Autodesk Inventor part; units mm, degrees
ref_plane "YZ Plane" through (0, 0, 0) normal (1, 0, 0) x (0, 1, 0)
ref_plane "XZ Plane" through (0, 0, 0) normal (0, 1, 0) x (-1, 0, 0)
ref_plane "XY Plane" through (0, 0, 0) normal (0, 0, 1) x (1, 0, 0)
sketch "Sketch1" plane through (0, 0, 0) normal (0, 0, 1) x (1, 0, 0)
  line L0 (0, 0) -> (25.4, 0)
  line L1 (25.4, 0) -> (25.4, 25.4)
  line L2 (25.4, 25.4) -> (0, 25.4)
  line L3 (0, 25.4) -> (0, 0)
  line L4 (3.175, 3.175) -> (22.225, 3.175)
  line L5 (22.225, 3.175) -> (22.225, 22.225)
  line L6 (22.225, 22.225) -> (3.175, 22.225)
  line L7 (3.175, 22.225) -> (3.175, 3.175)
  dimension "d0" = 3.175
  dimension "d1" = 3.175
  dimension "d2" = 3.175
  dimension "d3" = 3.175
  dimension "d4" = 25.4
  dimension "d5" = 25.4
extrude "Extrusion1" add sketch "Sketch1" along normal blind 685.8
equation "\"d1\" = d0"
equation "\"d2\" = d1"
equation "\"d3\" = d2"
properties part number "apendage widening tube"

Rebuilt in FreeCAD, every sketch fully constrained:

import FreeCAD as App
import Part
import Sketcher
from FreeCAD import Vector
Q = App.Units.Quantity

doc = App.newDocument("Part")
body = doc.addObject("PartDesign::Body", "Body")

# Sketch on XY plane
sketch1 = body.newObject("Sketcher::SketchObject", "Sketch")
sketch1.AttachmentSupport = (doc.getObject("XY_Plane"), [""])
sketch1.MapMode = "FlatFace"
sketch1.addGeometry([
    Part.LineSegment(Vector(0, 25.4, 0), Vector(0, 0, 0)),  # 0
    Part.LineSegment(Vector(0, 0, 0), Vector(25.4, 0, 0)),  # 1
    Part.LineSegment(Vector(25.4, 0, 0), Vector(25.4, 25.4, 0)),  # 2
    Part.LineSegment(Vector(25.4, 25.4, 0), Vector(0, 25.4, 0)),  # 3
    Part.LineSegment(Vector(22.225, 3.175, 0), Vector(3.175, 3.175, 0)),  # 4
    Part.LineSegment(Vector(3.175, 3.175, 0), Vector(3.175, 22.225, 0)),  # 5
    Part.LineSegment(Vector(3.175, 22.225, 0), Vector(22.225, 22.225, 0)),  # 6
    Part.LineSegment(Vector(22.225, 22.225, 0), Vector(22.225, 3.175, 0)),  # 7
], False)
sketch1.addConstraint([
    Sketcher.Constraint("Coincident", 0, 2, 1, 1),
    Sketcher.Constraint("Coincident", 1, 2, 2, 1),
    Sketcher.Constraint("Coincident", 2, 2, 3, 1),
    Sketcher.Constraint("Coincident", 3, 2, 0, 1),
    Sketcher.Constraint("Coincident", 4, 2, 5, 1),
    Sketcher.Constraint("Coincident", 5, 2, 6, 1),
    Sketcher.Constraint("Coincident", 6, 2, 7, 1),
    Sketcher.Constraint("Coincident", 7, 2, 4, 1),
    Sketcher.Constraint("Vertical", 0),
    Sketcher.Constraint("Horizontal", 1),
    Sketcher.Constraint("Vertical", 2),
    Sketcher.Constraint("Horizontal", 3),
    Sketcher.Constraint("Horizontal", 4),
    Sketcher.Constraint("Vertical", 5),
    Sketcher.Constraint("Horizontal", 6),
    Sketcher.Constraint("Vertical", 7),
    Sketcher.Constraint("Coincident", 0, 2, -1, 1),
    Sketcher.Constraint("Equal", 3, 0),
    Sketcher.Constraint("Equal", 6, 5),
    Sketcher.Constraint("DistanceX", 1, 1, 1, 2, Q("1 in")),
    Sketcher.Constraint("DistanceX", -1, 1, 4, 2, Q("0.125 in")),
    Sketcher.Constraint("DistanceY", -1, 1, 4, 2, Q("0.125 in")),
    Sketcher.Constraint("DistanceY", 5, 2, 3, 2, Q("0.125 in")),
])
pad1 = body.newObject("PartDesign::Pad", "Pad")
pad1.Profile = sketch1
pad1.Length = Q("27 in")

doc.recompute()
